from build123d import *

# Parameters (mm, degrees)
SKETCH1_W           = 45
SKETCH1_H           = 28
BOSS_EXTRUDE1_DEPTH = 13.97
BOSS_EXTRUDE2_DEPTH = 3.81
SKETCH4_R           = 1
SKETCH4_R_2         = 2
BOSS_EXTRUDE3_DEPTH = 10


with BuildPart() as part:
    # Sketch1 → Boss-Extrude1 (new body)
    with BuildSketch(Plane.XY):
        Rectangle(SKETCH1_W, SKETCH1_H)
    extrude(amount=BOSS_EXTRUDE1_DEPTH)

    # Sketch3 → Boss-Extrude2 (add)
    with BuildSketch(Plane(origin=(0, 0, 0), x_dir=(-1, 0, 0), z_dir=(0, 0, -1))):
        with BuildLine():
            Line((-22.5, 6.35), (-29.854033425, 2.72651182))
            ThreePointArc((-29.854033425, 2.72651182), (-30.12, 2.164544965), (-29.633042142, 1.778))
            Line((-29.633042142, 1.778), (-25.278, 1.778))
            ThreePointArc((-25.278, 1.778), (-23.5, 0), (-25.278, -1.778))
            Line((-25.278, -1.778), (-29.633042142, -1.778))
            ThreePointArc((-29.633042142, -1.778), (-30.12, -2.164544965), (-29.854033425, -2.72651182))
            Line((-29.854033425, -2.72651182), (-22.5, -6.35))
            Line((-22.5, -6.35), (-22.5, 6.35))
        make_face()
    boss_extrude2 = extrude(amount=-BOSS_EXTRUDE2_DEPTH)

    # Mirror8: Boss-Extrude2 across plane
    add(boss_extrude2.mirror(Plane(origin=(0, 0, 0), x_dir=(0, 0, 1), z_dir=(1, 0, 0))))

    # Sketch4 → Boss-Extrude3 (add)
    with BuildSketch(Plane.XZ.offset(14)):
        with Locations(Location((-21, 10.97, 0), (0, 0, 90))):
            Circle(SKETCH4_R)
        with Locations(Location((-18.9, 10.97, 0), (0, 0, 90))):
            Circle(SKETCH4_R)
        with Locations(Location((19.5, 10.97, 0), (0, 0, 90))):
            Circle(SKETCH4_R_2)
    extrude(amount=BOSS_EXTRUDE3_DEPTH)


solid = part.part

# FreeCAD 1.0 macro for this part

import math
import FreeCAD as App
import Part
import Sketcher

V = App.Vector
Q = App.Units.Quantity

doc = App.newDocument("Part")
params = doc.addObject("Spreadsheet::Sheet", "Params")
for row, (alias, value) in enumerate([
    ("sketch1_width", "45 mm"),
    ("sketch1_height", "28 mm"),
    ("pad1_length", "13.97 mm"),
    ("sketch2_radius", "0.5 mm"),
    ("sketch2_height", "12.7 mm"),
    ("pad2_length", "3.81 mm"),
    ("sketch3_diameter", "2 mm"),
    ("sketch3_diameter2", "4 mm"),
    ("pad3_length", "10 mm"),
], start=1):
    params.set(f"A{row}", alias)
    params.set(f"B{row}", "=" + value)
    params.setAlias(f"B{row}", alias)

body = doc.addObject("PartDesign::Body", "Body")

# Sketch on XY plane
sketch1 = body.newObject("Sketcher::SketchObject", "Sketch")
sketch1.AttachmentSupport = (doc.getObject("XY_Plane"), [""])
sketch1.MapMode = "FlatFace"
sketch1.addGeometry([
    Part.LineSegment(V(-22.5, 14, 0), V(-22.5, -14, 0)),
    Part.LineSegment(V(-22.5, -14, 0), V(22.5, -14, 0)),
    Part.LineSegment(V(22.5, -14, 0), V(22.5, 14, 0)),
    Part.LineSegment(V(22.5, 14, 0), V(-22.5, 14, 0)),
], False)
sketch1.addConstraint([
    Sketcher.Constraint("Coincident", 0, 2, 1, 1),
    Sketcher.Constraint("Coincident", 1, 2, 2, 1),
    Sketcher.Constraint("Coincident", 2, 2, 3, 1),
    Sketcher.Constraint("Coincident", 3, 2, 0, 1),
    Sketcher.Constraint("Vertical", 0),
    Sketcher.Constraint("Horizontal", 1),
    Sketcher.Constraint("Vertical", 2),
    Sketcher.Constraint("Horizontal", 3),
    Sketcher.Constraint("Symmetric", 0, 2, 2, 2, -1, 1),
    Sketcher.Constraint("DistanceX", 1, 1, 1, 2, Q("45 mm")),
    Sketcher.Constraint("DistanceY", 0, 2, 0, 1, Q("28 mm")),
])
sketch1.setExpression("Constraints[9]", "Params.sketch1_width")
sketch1.setExpression("Constraints[10]", "Params.sketch1_height")
pad1 = body.newObject("PartDesign::Pad", "Pad")
pad1.Profile = sketch1
pad1.setExpression("Length", "Params.pad1_length")

# Sketch on XY plane
sketch2 = body.newObject("Sketcher::SketchObject", "Sketch001")
sketch2.AttachmentSupport = (doc.getObject("XY_Plane"), [""])
sketch2.MapMode = "FlatFace"
sketch2.addGeometry([
    Part.LineSegment(V(22.5, 6.35, 0), V(29.854033, 2.726512, 0)),  # 0
    Part.ArcOfCircle(Part.Circle(V(29.633042, 2.278, 0), V(0, 0, 1), 0.5), math.radians(-90), math.radians(63.769555)),  # 1
    Part.LineSegment(V(29.633042, 1.778, 0), V(25.278, 1.778, 0)),  # 2
    Part.ArcOfCircle(Part.Circle(V(25.278, 0, 0), V(0, 0, 1), 1.778), math.radians(90), math.radians(270)),  # 3
    Part.LineSegment(V(25.278, -1.778, 0), V(29.633042, -1.778, 0)),  # 4
    Part.ArcOfCircle(Part.Circle(V(29.633042, -2.278, 0), V(0, 0, 1), 0.5), math.radians(-63.769555), math.radians(90)),  # 5
    Part.LineSegment(V(29.854033, -2.726512, 0), V(22.5, -6.35, 0)),  # 6
    Part.LineSegment(V(22.5, -6.35, 0), V(22.5, 6.35, 0)),  # 7
], False)
sketch2.addConstraint([
    Sketcher.Constraint("Tangent", 0, 2, 1, 2),
    Sketcher.Constraint("Tangent", 1, 1, 2, 1),
    Sketcher.Constraint("Tangent", 2, 2, 3, 1),
    Sketcher.Constraint("Tangent", 3, 2, 4, 1),
    Sketcher.Constraint("Tangent", 4, 2, 5, 2),
    Sketcher.Constraint("Tangent", 5, 1, 6, 1),
    Sketcher.Constraint("Coincident", 6, 2, 7, 1),
    Sketcher.Constraint("Coincident", 7, 2, 0, 1),
    Sketcher.Constraint("Horizontal", 2),
    Sketcher.Constraint("Horizontal", 4),
    Sketcher.Constraint("Vertical", 7),
    Sketcher.Constraint("Equal", 1, 5),
    Sketcher.Constraint("Symmetric", 1, 3, 5, 3, -1),
    Sketcher.Constraint("Vertical", 0, 2, 5, 1),
    Sketcher.Constraint("Radius", 1, Q("0.5 mm")),
    Sketcher.Constraint("DistanceY", 7, 1, 7, 2, Q("12.7 mm")),
    Sketcher.Constraint("Radius", 3, Q("1.778 mm")),
    Sketcher.Constraint("DistanceX", -1, 1, 6, 2, Q("22.5 mm")),
    Sketcher.Constraint("DistanceX", -1, 1, 3, 3, Q("25.278 mm")),
    Sketcher.Constraint("Distance", 0, Q("8.19826 mm")),
])
sketch2.setExpression("Constraints[14]", "Params.sketch2_radius")
sketch2.setExpression("Constraints[15]", "Params.sketch2_height")
pad2 = body.newObject("PartDesign::Pad", "Pad001")
pad2.Profile = sketch2
pad2.setExpression("Length", "Params.pad2_length")
doc.recompute()

mirrored = body.newObject("PartDesign::Mirrored", "Mirrored")
mirrored.Originals = [pad2]
mirrored.MirrorPlane = (doc.getObject("YZ_Plane"), [""])
body.Tip = mirrored

# Sketch on XZ plane
sketch3 = body.newObject("Sketcher::SketchObject", "Sketch002")
sketch3.AttachmentSupport = (doc.getObject("XZ_Plane"), [""])
sketch3.MapMode = "FlatFace"
sketch3.AttachmentOffset = App.Placement(V(0, 0, 14), App.Rotation())
sketch3.addGeometry([
    Part.Circle(V(-21, 10.97, 0), V(0, 0, 1), 1),
    Part.Circle(V(-18.9, 10.97, 0), V(0, 0, 1), 1),
    Part.Circle(V(19.5, 10.97, 0), V(0, 0, 1), 2),
], False)
sketch3.addConstraint([
    Sketcher.Constraint("Equal", 0, 1),
    Sketcher.Constraint("Horizontal", 0, 3, 1, 3),
    Sketcher.Constraint("Horizontal", 1, 3, 2, 3),
    Sketcher.Constraint("Diameter", 0, Q("2 mm")),
    Sketcher.Constraint("Diameter", 2, Q("4 mm")),
    Sketcher.Constraint("DistanceX", 0, 3, -1, 1, Q("21 mm")),
    Sketcher.Constraint("DistanceX", 1, 3, -1, 1, Q("18.9 mm")),
    Sketcher.Constraint("DistanceX", -1, 1, 2, 3, Q("19.5 mm")),
    Sketcher.Constraint("DistanceY", -1, 1, 0, 3, Q("10.97 mm")),
])
sketch3.setExpression("Constraints[3]", "Params.sketch3_diameter")
sketch3.setExpression("Constraints[4]", "Params.sketch3_diameter2")
pad3 = body.newObject("PartDesign::Pad", "Pad002")
pad3.Profile = sketch3
pad3.setExpression("Length", "Params.pad3_length")

doc.recompute()
